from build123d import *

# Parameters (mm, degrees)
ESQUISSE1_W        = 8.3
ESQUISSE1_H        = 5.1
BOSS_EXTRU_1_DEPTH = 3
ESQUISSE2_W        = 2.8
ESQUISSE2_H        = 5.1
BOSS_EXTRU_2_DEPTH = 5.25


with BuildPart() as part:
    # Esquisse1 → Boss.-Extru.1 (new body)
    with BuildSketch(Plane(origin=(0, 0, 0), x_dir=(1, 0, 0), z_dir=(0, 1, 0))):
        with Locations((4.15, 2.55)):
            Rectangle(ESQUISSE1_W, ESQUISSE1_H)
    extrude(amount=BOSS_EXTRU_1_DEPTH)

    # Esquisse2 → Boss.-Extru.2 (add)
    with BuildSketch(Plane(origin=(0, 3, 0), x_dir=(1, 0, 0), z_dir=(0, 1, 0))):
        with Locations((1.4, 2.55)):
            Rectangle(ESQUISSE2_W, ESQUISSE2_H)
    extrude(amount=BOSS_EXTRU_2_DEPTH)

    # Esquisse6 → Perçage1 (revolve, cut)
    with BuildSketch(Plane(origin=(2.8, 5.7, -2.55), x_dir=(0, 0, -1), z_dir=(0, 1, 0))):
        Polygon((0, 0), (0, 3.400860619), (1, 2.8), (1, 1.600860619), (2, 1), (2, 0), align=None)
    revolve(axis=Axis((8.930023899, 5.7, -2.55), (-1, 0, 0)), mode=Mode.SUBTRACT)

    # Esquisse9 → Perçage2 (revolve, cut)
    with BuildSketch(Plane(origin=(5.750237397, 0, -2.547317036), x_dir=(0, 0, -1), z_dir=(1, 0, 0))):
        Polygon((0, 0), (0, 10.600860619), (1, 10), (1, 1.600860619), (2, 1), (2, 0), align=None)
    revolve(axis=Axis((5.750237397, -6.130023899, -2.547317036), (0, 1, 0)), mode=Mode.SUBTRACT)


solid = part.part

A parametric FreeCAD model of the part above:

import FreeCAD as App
import Part
import Sketcher
Q = App.Units.Quantity

doc = App.newDocument("Part")
body = doc.addObject("PartDesign::Body", "Body")

sketch1 = body.newObject("Sketcher::SketchObject", "Sketch")
sketch1.AttachmentSupport = (doc.getObject("XZ_Plane"), [""])
sketch1.MapMode = "FlatFace"
sketch1.addGeometry([
    Part.LineSegment(App.Vector(0, -5, 0), App.Vector(0, 0, 0)),
    Part.LineSegment(App.Vector(0, 0, 0), App.Vector(8, 0, 0)),
    Part.LineSegment(App.Vector(8, 0, 0), App.Vector(8, -5, 0)),
    Part.LineSegment(App.Vector(8, -5, 0), App.Vector(0, -5, 0)),
], False)
sketch1.addConstraint([
    Sketcher.Constraint("Coincident", 0, 2, 1, 1),
    Sketcher.Constraint("Coincident", 1, 2, 2, 1),
    Sketcher.Constraint("Coincident", 2, 2, 3, 1),
    Sketcher.Constraint("Coincident", 3, 2, 0, 1),
    Sketcher.Constraint("Vertical", 0),
    Sketcher.Constraint("Horizontal", 1),
    Sketcher.Constraint("Vertical", 2),
    Sketcher.Constraint("Horizontal", 3),
    Sketcher.Constraint("Coincident", 0, 2, -1, 1),
    Sketcher.Constraint("DistanceX", 1, 1, 1, 2, 8.3),
    Sketcher.Constraint("DistanceY", 0, 1, 0, 2, 5.1),
])
pad1 = body.newObject("PartDesign::Pad", "Pad")
pad1.Profile = sketch1
pad1.Length = 3
pad1.Reversed = True

sketch2 = body.newObject("Sketcher::SketchObject", "Sketch001")
sketch2.AttachmentSupport = (doc.getObject("XZ_Plane"), [""])
sketch2.MapMode = "FlatFace"
sketch2.AttachmentOffset = App.Placement(App.Vector(0, 0, -3), App.Rotation())
sketch2.addGeometry([
    Part.LineSegment(App.Vector(0, -5.1, 0), App.Vector(0, 0, 0)),
    Part.LineSegment(App.Vector(0, 0, 0), App.Vector(2.8, 0, 0)),
    Part.LineSegment(App.Vector(2.8, 0, 0), App.Vector(2.8, -5.1, 0)),
    Part.LineSegment(App.Vector(2.8, -5.1, 0), App.Vector(0, -5.1, 0)),
], False)
sketch2.addConstraint([
    Sketcher.Constraint("Coincident", 0, 2, 1, 1),
    Sketcher.Constraint("Coincident", 1, 2, 2, 1),
    Sketcher.Constraint("Coincident", 2, 2, 3, 1),
    Sketcher.Constraint("Coincident", 3, 2, 0, 1),
    Sketcher.Constraint("Vertical", 0),
    Sketcher.Constraint("Horizontal", 1),
    Sketcher.Constraint("Vertical", 2),
    Sketcher.Constraint("Horizontal", 3),
    Sketcher.Constraint("Coincident", 0, 2, -1, 1),
    Sketcher.Constraint("DistanceX", 1, 1, 1, 2, 2.8),
    Sketcher.Constraint("DistanceY", 0, 1, 0, 2, 5.1),
])
pad2 = body.newObject("PartDesign::Pad", "Pad001")
pad2.Profile = sketch2
pad2.Length = 5.25
pad2.Reversed = True

sketch3 = body.newObject("Sketcher::SketchObject", "Sketch002")
sketch3.AttachmentSupport = (doc.getObject("XZ_Plane"), [""])
sketch3.MapMode = "FlatFace"
sketch3.AttachmentOffset = App.Placement(App.Vector(0, 0, -5.7), App.Rotation())
sketch3.addGeometry([
    Part.LineSegment(App.Vector(-0.6, -2.5, 0), App.Vector(2.8, -2.5, 0)),
    Part.LineSegment(App.Vector(2.8, -2.5, 0), App.Vector(2.8, -4.5, 0)),
    Part.LineSegment(App.Vector(2.8, -4.5, 0), App.Vector(1.8, -4.5, 0)),
    Part.LineSegment(App.Vector(1.8, -4.5, 0), App.Vector(1.2, -3.5, 0)),
    Part.LineSegment(App.Vector(1.2, -3.5, 0), App.Vector(0, -3.5, 0)),
    Part.LineSegment(App.Vector(0, -3.5, 0), App.Vector(-0.6, -2.5, 0)),
], False)
sketch3.addGeometry(Part.LineSegment(App.Vector(2.8, -2.5, 0), App.Vector(-0.6, -2.5, 0)), True)
sketch3.addConstraint([
    Sketcher.Constraint("Coincident", 0, 2, 1, 1),
    Sketcher.Constraint("Coincident", 1, 2, 2, 1),
    Sketcher.Constraint("Coincident", 2, 2, 3, 1),
    Sketcher.Constraint("Coincident", 3, 2, 4, 1),
    Sketcher.Constraint("Coincident", 4, 2, 5, 1),
    Sketcher.Constraint("Coincident", 5, 2, 0, 1),
    Sketcher.Constraint("Horizontal", 0),
    Sketcher.Constraint("Vertical", 1),
    Sketcher.Constraint("Horizontal", 2),
    Sketcher.Constraint("Horizontal", 4),
    Sketcher.Constraint("Horizontal", 6),
    Sketcher.Constraint("Coincident", 6, 1, 0, 2),
    Sketcher.Constraint("PointOnObject", 4, 2, -2),
    Sketcher.Constraint("Parallel", 3, 5),
    Sketcher.Constraint("Equal", 0, 6),
    Sketcher.Constraint("Equal", 3, 5),
    Sketcher.Constraint("DistanceX", 2, 2, 2, 1, 1.0),
    Sketcher.Constraint("DistanceY", 1, 2, 1, 1, 2.0),
    Sketcher.Constraint("Angle", 3, Q("121 deg")),
    Sketcher.Constraint("DistanceX", -1, 1, 0, 2, 2.8),
    Sketcher.Constraint("DistanceY", 0, 2, -1, 1, 2.55),
])
groove = body.newObject("PartDesign::Groove", "Groove")
groove.Profile = sketch3
groove.ReferenceAxis = (sketch3, ["Axis0"])
groove.Angle = 360

sketch4 = body.newObject("Sketcher::SketchObject", "Sketch003")
sketch4.AttachmentSupport = (doc.getObject("YZ_Plane"), [""])
sketch4.MapMode = "FlatFace"
sketch4.AttachmentOffset = App.Placement(App.Vector(0, 0, 5.750237), App.Rotation())
sketch4.addGeometry([
    Part.LineSegment(App.Vector(10.6, -2.5, 0), App.Vector(0, -2.5, 0)),
    Part.LineSegment(App.Vector(0, -2.5, 0), App.Vector(0, -4.5, 0)),
    Part.LineSegment(App.Vector(0, -4.5, 0), App.Vector(1, -4.5, 0)),
    Part.LineSegment(App.Vector(1, -4.5, 0), App.Vector(1.6, -3.5, 0)),
    Part.LineSegment(App.Vector(1.6, -3.5, 0), App.Vector(10, -3.5, 0)),
    Part.LineSegment(App.Vector(10, -3.5, 0), App.Vector(10.6, -2.5, 0)),
], False)
sketch4.addGeometry(Part.LineSegment(App.Vector(0, -2.5, 0), App.Vector(10.6, -2.5, 0)), True)
sketch4.addConstraint([
    Sketcher.Constraint("Coincident", 0, 2, 1, 1),
    Sketcher.Constraint("Coincident", 1, 2, 2, 1),
    Sketcher.Constraint("Coincident", 2, 2, 3, 1),
    Sketcher.Constraint("Coincident", 3, 2, 4, 1),
    Sketcher.Constraint("Coincident", 4, 2, 5, 1),
    Sketcher.Constraint("Coincident", 5, 2, 0, 1),
    Sketcher.Constraint("Horizontal", 0),
    Sketcher.Constraint("Vertical", 1),
    Sketcher.Constraint("Horizontal", 2),
    Sketcher.Constraint("Horizontal", 4),
    Sketcher.Constraint("Horizontal", 6),
    Sketcher.Constraint("Coincident", 6, 1, 0, 2),
    Sketcher.Constraint("PointOnObject", 0, 2, -2),
    Sketcher.Constraint("Parallel", 3, 5),
    Sketcher.Constraint("Equal", 0, 6),
    Sketcher.Constraint("Equal", 3, 5),
    Sketcher.Constraint("DistanceX", 2, 1, 2, 2, 1.0),
    Sketcher.Constraint("DistanceY", 1, 2, 1, 1, 2.0),
    Sketcher.Constraint("Angle", 3, Q("59 deg")),
    Sketcher.Constraint("DistanceX", -1, 1, 4, 2, 10.0),
    Sketcher.Constraint("DistanceY", 0, 2, -1, 1, 2.547317),
])
groove2 = body.newObject("PartDesign::Groove", "Groove001")
groove2.Profile = sketch4
groove2.ReferenceAxis = (sketch4, ["Axis0"])
groove2.Angle = 360

doc.recompute()
